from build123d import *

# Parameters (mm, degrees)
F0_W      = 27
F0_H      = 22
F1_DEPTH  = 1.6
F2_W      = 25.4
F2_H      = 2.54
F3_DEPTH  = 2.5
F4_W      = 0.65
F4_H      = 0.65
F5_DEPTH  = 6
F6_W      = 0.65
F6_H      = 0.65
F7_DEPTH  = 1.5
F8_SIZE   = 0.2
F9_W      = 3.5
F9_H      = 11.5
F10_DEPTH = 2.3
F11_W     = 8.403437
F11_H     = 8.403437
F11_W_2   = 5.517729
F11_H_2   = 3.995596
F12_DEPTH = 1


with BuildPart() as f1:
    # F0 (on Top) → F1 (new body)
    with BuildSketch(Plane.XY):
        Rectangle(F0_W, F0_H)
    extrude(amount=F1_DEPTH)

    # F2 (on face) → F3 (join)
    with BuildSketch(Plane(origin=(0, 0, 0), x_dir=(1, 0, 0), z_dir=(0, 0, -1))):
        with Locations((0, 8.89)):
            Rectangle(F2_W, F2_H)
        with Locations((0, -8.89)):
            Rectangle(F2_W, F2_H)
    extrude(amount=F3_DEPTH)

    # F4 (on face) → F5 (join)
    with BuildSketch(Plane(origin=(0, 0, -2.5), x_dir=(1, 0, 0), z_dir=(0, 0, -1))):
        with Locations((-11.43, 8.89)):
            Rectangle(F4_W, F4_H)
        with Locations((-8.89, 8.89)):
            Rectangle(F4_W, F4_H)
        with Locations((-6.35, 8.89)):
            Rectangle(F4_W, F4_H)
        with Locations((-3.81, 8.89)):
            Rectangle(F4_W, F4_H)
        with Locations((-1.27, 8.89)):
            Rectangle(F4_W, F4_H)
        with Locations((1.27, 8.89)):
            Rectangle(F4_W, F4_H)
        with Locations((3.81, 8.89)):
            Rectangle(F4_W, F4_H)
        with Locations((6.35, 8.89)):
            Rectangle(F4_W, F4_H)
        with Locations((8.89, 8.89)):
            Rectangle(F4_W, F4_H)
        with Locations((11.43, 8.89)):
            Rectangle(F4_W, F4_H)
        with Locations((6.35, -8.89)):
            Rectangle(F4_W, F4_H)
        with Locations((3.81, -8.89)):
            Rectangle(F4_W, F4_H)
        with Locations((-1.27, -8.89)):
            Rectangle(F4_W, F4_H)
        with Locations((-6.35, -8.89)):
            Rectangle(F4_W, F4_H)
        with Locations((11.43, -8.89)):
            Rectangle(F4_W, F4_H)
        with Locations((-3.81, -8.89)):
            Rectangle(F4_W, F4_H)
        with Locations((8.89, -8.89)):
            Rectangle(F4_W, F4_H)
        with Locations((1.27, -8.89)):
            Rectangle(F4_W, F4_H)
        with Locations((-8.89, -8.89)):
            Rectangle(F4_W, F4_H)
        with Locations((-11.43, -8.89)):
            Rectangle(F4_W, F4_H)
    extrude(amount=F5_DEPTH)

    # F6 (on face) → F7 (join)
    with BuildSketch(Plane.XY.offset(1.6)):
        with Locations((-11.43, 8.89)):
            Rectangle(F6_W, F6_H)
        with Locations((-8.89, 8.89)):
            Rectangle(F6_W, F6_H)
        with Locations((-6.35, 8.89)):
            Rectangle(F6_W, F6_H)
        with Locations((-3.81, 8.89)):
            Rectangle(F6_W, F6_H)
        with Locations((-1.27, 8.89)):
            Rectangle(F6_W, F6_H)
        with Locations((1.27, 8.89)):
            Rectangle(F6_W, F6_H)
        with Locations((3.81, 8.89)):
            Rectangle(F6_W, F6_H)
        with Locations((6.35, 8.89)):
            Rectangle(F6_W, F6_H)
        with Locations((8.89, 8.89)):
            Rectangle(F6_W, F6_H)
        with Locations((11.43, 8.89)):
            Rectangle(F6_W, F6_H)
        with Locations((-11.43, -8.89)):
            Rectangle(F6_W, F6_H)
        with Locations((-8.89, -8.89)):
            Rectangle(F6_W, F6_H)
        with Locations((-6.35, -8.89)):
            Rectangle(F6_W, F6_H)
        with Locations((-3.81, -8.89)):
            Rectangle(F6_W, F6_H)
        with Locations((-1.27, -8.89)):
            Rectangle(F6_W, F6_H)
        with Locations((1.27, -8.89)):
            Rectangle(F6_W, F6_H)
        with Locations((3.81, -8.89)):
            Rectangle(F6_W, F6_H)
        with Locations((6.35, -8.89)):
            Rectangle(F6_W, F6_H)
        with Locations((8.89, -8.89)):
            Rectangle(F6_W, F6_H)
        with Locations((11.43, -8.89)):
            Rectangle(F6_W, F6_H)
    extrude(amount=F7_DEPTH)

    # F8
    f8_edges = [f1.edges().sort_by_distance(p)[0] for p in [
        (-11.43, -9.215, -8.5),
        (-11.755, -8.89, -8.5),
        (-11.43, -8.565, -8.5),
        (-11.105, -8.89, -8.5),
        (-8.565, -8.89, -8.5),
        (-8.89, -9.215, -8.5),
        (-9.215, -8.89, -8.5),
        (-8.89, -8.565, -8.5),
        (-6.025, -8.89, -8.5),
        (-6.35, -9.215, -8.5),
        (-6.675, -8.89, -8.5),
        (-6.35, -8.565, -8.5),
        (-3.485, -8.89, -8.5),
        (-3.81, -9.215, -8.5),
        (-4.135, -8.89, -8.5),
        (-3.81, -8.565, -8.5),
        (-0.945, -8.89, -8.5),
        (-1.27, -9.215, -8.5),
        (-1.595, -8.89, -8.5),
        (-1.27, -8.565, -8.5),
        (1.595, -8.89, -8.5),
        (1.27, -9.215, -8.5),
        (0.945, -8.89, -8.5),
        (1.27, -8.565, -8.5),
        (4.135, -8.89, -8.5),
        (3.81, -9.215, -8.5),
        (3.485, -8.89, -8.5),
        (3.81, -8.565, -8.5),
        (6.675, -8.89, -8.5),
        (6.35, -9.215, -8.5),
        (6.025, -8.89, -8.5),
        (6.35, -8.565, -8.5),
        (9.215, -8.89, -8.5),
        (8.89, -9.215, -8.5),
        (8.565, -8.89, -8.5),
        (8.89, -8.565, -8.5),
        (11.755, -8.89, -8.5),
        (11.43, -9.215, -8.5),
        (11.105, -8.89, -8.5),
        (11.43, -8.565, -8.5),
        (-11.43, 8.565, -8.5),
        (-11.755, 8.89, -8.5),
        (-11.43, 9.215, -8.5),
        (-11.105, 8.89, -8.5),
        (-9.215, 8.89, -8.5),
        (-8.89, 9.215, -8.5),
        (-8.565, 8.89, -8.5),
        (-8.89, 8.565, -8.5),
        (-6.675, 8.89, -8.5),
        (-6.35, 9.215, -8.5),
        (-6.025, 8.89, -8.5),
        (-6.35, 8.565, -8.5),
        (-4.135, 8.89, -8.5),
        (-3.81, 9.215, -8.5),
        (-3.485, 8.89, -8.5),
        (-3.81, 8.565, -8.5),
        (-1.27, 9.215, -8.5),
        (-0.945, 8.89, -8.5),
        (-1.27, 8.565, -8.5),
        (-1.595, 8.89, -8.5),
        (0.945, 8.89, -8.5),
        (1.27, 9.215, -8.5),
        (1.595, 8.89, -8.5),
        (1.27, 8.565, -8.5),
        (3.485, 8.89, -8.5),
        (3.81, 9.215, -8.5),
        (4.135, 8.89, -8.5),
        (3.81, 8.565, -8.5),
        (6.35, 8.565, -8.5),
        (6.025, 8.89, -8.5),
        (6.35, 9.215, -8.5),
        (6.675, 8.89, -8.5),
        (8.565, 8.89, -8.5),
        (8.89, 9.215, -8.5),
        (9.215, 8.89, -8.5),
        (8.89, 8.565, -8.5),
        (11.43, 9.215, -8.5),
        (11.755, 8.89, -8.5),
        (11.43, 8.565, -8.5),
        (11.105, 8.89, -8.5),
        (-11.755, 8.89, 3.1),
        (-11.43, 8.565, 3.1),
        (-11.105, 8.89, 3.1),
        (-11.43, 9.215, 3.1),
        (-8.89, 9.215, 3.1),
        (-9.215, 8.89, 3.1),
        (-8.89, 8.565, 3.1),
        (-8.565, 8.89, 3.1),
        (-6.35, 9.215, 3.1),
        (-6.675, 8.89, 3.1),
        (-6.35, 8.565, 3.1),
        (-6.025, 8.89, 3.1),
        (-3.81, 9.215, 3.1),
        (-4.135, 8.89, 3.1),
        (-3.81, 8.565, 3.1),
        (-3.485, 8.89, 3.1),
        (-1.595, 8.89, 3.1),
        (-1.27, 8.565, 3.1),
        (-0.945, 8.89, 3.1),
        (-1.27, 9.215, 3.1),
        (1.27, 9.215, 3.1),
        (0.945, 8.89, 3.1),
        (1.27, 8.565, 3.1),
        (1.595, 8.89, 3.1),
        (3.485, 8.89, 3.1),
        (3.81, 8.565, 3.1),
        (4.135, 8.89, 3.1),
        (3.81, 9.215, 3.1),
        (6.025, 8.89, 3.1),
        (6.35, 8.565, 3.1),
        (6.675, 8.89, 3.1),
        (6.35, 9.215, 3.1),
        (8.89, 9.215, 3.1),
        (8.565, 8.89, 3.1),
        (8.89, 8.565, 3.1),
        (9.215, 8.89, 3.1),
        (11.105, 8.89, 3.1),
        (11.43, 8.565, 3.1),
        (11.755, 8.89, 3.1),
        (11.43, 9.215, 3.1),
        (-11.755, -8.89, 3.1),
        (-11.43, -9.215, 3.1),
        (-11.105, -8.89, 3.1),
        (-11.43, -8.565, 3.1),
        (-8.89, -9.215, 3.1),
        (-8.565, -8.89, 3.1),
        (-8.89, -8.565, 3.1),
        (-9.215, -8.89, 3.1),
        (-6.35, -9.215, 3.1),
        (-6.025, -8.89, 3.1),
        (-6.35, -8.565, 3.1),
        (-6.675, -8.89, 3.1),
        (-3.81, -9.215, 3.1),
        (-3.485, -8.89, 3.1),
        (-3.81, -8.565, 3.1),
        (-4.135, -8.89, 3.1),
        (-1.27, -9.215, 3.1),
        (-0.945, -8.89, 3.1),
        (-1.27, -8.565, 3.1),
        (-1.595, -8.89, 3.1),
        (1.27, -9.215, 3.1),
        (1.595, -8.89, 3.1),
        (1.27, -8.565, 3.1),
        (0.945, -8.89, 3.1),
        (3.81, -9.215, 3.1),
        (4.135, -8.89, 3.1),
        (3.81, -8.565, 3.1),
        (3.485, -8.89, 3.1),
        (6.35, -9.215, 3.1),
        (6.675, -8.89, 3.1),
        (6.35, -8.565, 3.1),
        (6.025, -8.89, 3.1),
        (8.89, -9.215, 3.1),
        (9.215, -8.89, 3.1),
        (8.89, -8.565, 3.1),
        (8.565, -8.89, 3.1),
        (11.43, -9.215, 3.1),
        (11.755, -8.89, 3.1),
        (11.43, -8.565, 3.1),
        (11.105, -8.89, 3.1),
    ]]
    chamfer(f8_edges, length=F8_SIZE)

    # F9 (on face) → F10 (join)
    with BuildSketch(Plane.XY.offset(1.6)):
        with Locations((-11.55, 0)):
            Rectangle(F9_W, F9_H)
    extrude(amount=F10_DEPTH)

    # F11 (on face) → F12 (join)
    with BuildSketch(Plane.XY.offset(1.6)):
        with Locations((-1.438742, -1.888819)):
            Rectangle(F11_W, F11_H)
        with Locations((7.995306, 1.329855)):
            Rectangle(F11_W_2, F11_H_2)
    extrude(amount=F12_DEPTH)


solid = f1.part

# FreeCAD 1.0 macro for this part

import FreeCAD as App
import Part
import Sketcher

V = App.Vector


def edges_at(feature, points):
    """Names of the edges that pass closest to the given points."""
    edges = feature.Shape.Edges
    near = lambda p: min(range(len(edges)), key=lambda i: edges[i].distToShape(Part.Vertex(*p))[0])
    return sorted({f"Edge{near(p) + 1}" for p in points})

doc = App.newDocument("Part")
body = doc.addObject("PartDesign::Body", "Body")

sketch1 = body.newObject("Sketcher::SketchObject", "Sketch")
sketch1.AttachmentSupport = (doc.getObject("XY_Plane"), [""])
sketch1.MapMode = "FlatFace"
sketch1.addGeometry([
    Part.LineSegment(V(-14, 11, 0), V(-14, -11, 0)),
    Part.LineSegment(V(-14, -11, 0), V(14, -11, 0)),
    Part.LineSegment(V(14, -11, 0), V(14, 11, 0)),
    Part.LineSegment(V(14, 11, 0), V(-14, 11, 0)),
], False)
sketch1.addConstraint([
    Sketcher.Constraint("Coincident", 0, 2, 1, 1),
    Sketcher.Constraint("Coincident", 1, 2, 2, 1),
    Sketcher.Constraint("Coincident", 2, 2, 3, 1),
    Sketcher.Constraint("Coincident", 3, 2, 0, 1),
    Sketcher.Constraint("Vertical", 0),
    Sketcher.Constraint("Horizontal", 1),
    Sketcher.Constraint("Vertical", 2),
    Sketcher.Constraint("Horizontal", 3),
    Sketcher.Constraint("Symmetric", 0, 2, 2, 2, -1, 1),
    Sketcher.Constraint("DistanceX", 1, 1, 1, 2, 27.0),
    Sketcher.Constraint("DistanceY", 0, 2, 0, 1, 22.0),
])
pad1 = body.newObject("PartDesign::Pad", "Pad")
pad1.Profile = sketch1
pad1.Length = 1.6

sketch2 = body.newObject("Sketcher::SketchObject", "Sketch001")
sketch2.AttachmentSupport = (doc.getObject("XY_Plane"), [""])
sketch2.MapMode = "FlatFace"
sketch2.addGeometry([
    Part.LineSegment(V(-12.7, -10.2, 0), V(-12.7, -7.6, 0)),
    Part.LineSegment(V(-12.7, -7.6, 0), V(12.7, -7.6, 0)),
    Part.LineSegment(V(12.7, -7.6, 0), V(12.7, -10.2, 0)),
    Part.LineSegment(V(12.7, -10.2, 0), V(-12.7, -10.2, 0)),
    Part.LineSegment(V(-12.7, 7.6, 0), V(-12.7, 10.2, 0)),
    Part.LineSegment(V(-12.7, 10.2, 0), V(12.7, 10.2, 0)),
    Part.LineSegment(V(12.7, 10.2, 0), V(12.7, 7.6, 0)),
    Part.LineSegment(V(12.7, 7.6, 0), V(-12.7, 7.6, 0)),
], False)
sketch2.addConstraint([
    Sketcher.Constraint("Coincident", 0, 2, 1, 1),
    Sketcher.Constraint("Coincident", 1, 2, 2, 1),
    Sketcher.Constraint("Coincident", 2, 2, 3, 1),
    Sketcher.Constraint("Coincident", 3, 2, 0, 1),
    Sketcher.Constraint("Coincident", 4, 2, 5, 1),
    Sketcher.Constraint("Coincident", 5, 2, 6, 1),
    Sketcher.Constraint("Coincident", 6, 2, 7, 1),
    Sketcher.Constraint("Coincident", 7, 2, 4, 1),
    Sketcher.Constraint("Vertical", 0),
    Sketcher.Constraint("Horizontal", 1),
    Sketcher.Constraint("Vertical", 2),
    Sketcher.Constraint("Horizontal", 3),
    Sketcher.Constraint("Vertical", 4),
    Sketcher.Constraint("Horizontal", 5),
    Sketcher.Constraint("Vertical", 6),
    Sketcher.Constraint("Horizontal", 7),
    Sketcher.Constraint("Symmetric", 2, 2, 4, 2, -1, 1),
    Sketcher.Constraint("Symmetric", 0, 2, 6, 2, -1, 1),
    Sketcher.Constraint("Vertical", 3, 2, 4, 2),
    Sketcher.Constraint("DistanceX", 1, 1, 1, 2, 25.4),
    Sketcher.Constraint("DistanceY", 0, 1, 0, 2, 2.54),
    Sketcher.Constraint("DistanceY", 0, 2, -1, 1, 7.62),
])
pad2 = body.newObject("PartDesign::Pad", "Pad001")
pad2.Profile = sketch2
pad2.Length = 2.5
pad2.Reversed = True

sketch3 = body.newObject("Sketcher::SketchObject", "Sketch002")
sketch3.AttachmentSupport = (doc.getObject("XY_Plane"), [""])
sketch3.MapMode = "FlatFace"
sketch3.AttachmentOffset = App.Placement(V(0, 0, -2.5), App.Rotation())
sketch3.addGeometry([
    Part.LineSegment(V(-11.8, -9.2, 0), V(-11.8, -8.6, 0)),
    Part.LineSegment(V(-11.8, -8.6, 0), V(-11.1, -8.6, 0)),
    Part.LineSegment(V(-11.1, -8.6, 0), V(-11.1, -9.2, 0)),
    Part.LineSegment(V(-11.1, -9.2, 0), V(-11.8, -9.2, 0)),
    Part.LineSegment(V(-9.2, -9.2, 0), V(-9.2, -8.6, 0)),
    Part.LineSegment(V(-9.2, -8.6, 0), V(-8.6, -8.6, 0)),
    Part.LineSegment(V(-8.6, -8.6, 0), V(-8.6, -9.2, 0)),
    Part.LineSegment(V(-8.6, -9.2, 0), V(-9.2, -9.2, 0)),
    Part.LineSegment(V(-6.7, -9.2, 0), V(-6.7, -8.6, 0)),
    Part.LineSegment(V(-6.7, -8.6, 0), V(-6, -8.6, 0)),
    Part.LineSegment(V(-6, -8.6, 0), V(-6, -9.2, 0)),
    Part.LineSegment(V(-6, -9.2, 0), V(-6.7, -9.2, 0)),
    Part.LineSegment(V(-4.1, -9.2, 0), V(-4.1, -8.6, 0)),
    Part.LineSegment(V(-4.1, -8.6, 0), V(-3.5, -8.6, 0)),
    Part.LineSegment(V(-3.5, -8.6, 0), V(-3.5, -9.2, 0)),
    Part.LineSegment(V(-3.5, -9.2, 0), V(-4.1, -9.2, 0)),
    Part.LineSegment(V(-1.6, -9.2, 0), V(-1.6, -8.6, 0)),
    Part.LineSegment(V(-1.6, -8.6, 0), V(-0.9, -8.6, 0)),
    Part.LineSegment(V(-0.9, -8.6, 0), V(-0.9, -9.2, 0)),
    Part.LineSegment(V(-0.9, -9.2, 0), V(-1.6, -9.2, 0)),
    Part.LineSegment(V(0.9, -9.2, 0), V(0.9, -8.6, 0)),
    Part.LineSegment(V(0.9, -8.6, 0), V(1.6, -8.6, 0)),
    Part.LineSegment(V(1.6, -8.6, 0), V(1.6, -9.2, 0)),
    Part.LineSegment(V(1.6, -9.2, 0), V(0.9, -9.2, 0)),
    Part.LineSegment(V(3.5, -9.2, 0), V(3.5, -8.6, 0)),
    Part.LineSegment(V(3.5, -8.6, 0), V(4.1, -8.6, 0)),
    Part.LineSegment(V(4.1, -8.6, 0), V(4.1, -9.2, 0)),
    Part.LineSegment(V(4.1, -9.2, 0), V(3.5, -9.2, 0)),
    Part.LineSegment(V(6, -9.2, 0), V(6, -8.6, 0)),
    Part.LineSegment(V(6, -8.6, 0), V(6.7, -8.6, 0)),
    Part.LineSegment(V(6.7, -8.6, 0), V(6.7, -9.2, 0)),
    Part.LineSegment(V(6.7, -9.2, 0), V(6, -9.2, 0)),
    Part.LineSegment(V(8.6, -9.2, 0), V(8.6, -8.6, 0)),
    Part.LineSegment(V(8.6, -8.6, 0), V(9.2, -8.6, 0)),
    Part.LineSegment(V(9.2, -8.6, 0), V(9.2, -9.2, 0)),
    Part.LineSegment(V(9.2, -9.2, 0), V(8.6, -9.2, 0)),
    Part.LineSegment(V(11.1, -9.2, 0), V(11.1, -8.6, 0)),
    Part.LineSegment(V(11.1, -8.6, 0), V(11.8, -8.6, 0)),
    Part.LineSegment(V(11.8, -8.6, 0), V(11.8, -9.2, 0)),
    Part.LineSegment(V(11.8, -9.2, 0), V(11.1, -9.2, 0)),
    Part.LineSegment(V(6, 8.6, 0), V(6, 9.2, 0)),
    Part.LineSegment(V(6, 9.2, 0), V(6.7, 9.2, 0)),
    Part.LineSegment(V(6.7, 9.2, 0), V(6.7, 8.6, 0)),
    Part.LineSegment(V(6.7, 8.6, 0), V(6, 8.6, 0)),
    Part.LineSegment(V(3.5, 8.6, 0), V(3.5, 9.2, 0)),
    Part.LineSegment(V(3.5, 9.2, 0), V(4.1, 9.2, 0)),
    Part.LineSegment(V(4.1, 9.2, 0), V(4.1, 8.6, 0)),
    Part.LineSegment(V(4.1, 8.6, 0), V(3.5, 8.6, 0)),
    Part.LineSegment(V(-1.6, 8.6, 0), V(-1.6, 9.2, 0)),
    Part.LineSegment(V(-1.6, 9.2, 0), V(-0.9, 9.2, 0)),
    Part.LineSegment(V(-0.9, 9.2, 0), V(-0.9, 8.6, 0)),
    Part.LineSegment(V(-0.9, 8.6, 0), V(-1.6, 8.6, 0)),
    Part.LineSegment(V(-6.7, 8.6, 0), V(-6.7, 9.2, 0)),
    Part.LineSegment(V(-6.7, 9.2, 0), V(-6, 9.2, 0)),
    Part.LineSegment(V(-6, 9.2, 0), V(-6, 8.6, 0)),
    Part.LineSegment(V(-6, 8.6, 0), V(-6.7, 8.6, 0)),
    Part.LineSegment(V(11.1, 8.6, 0), V(11.1, 9.2, 0)),
    Part.LineSegment(V(11.1, 9.2, 0), V(11.8, 9.2, 0)),
    Part.LineSegment(V(11.8, 9.2, 0), V(11.8, 8.6, 0)),
    Part.LineSegment(V(11.8, 8.6, 0), V(11.1, 8.6, 0)),
    Part.LineSegment(V(-4.1, 8.6, 0), V(-4.1, 9.2, 0)),
    Part.LineSegment(V(-4.1, 9.2, 0), V(-3.5, 9.2, 0)),
    Part.LineSegment(V(-3.5, 9.2, 0), V(-3.5, 8.6, 0)),
    Part.LineSegment(V(-3.5, 8.6, 0), V(-4.1, 8.6, 0)),
    Part.LineSegment(V(8.6, 8.6, 0), V(8.6, 9.2, 0)),
    Part.LineSegment(V(8.6, 9.2, 0), V(9.2, 9.2, 0)),
    Part.LineSegment(V(9.2, 9.2, 0), V(9.2, 8.6, 0)),
    Part.LineSegment(V(9.2, 8.6, 0), V(8.6, 8.6, 0)),
    Part.LineSegment(V(0.9, 8.6, 0), V(0.9, 9.2, 0)),
    Part.LineSegment(V(0.9, 9.2, 0), V(1.6, 9.2, 0)),
    Part.LineSegment(V(1.6, 9.2, 0), V(1.6, 8.6, 0)),
    Part.LineSegment(V(1.6, 8.6, 0), V(0.9, 8.6, 0)),
    Part.LineSegment(V(-9.2, 8.6, 0), V(-9.2, 9.2, 0)),
    Part.LineSegment(V(-9.2, 9.2, 0), V(-8.6, 9.2, 0)),
    Part.LineSegment(V(-8.6, 9.2, 0), V(-8.6, 8.6, 0)),
    Part.LineSegment(V(-8.6, 8.6, 0), V(-9.2, 8.6, 0)),
    Part.LineSegment(V(-11.8, 8.6, 0), V(-11.8, 9.2, 0)),
    Part.LineSegment(V(-11.8, 9.2, 0), V(-11.1, 9.2, 0)),
    Part.LineSegment(V(-11.1, 9.2, 0), V(-11.1, 8.6, 0)),
    Part.LineSegment(V(-11.1, 8.6, 0), V(-11.8, 8.6, 0)),
], False)
sketch3.addConstraint([
    Sketcher.Constraint("Coincident", 0, 2, 1, 1),
    Sketcher.Constraint("Coincident", 1, 2, 2, 1),
    Sketcher.Constraint("Coincident", 2, 2, 3, 1),
    Sketcher.Constraint("Coincident", 3, 2, 0, 1),
    Sketcher.Constraint("Coincident", 4, 2, 5, 1),
    Sketcher.Constraint("Coincident", 5, 2, 6, 1),
    Sketcher.Constraint("Coincident", 6, 2, 7, 1),
    Sketcher.Constraint("Coincident", 7, 2, 4, 1),
    Sketcher.Constraint("Coincident", 8, 2, 9, 1),
    Sketcher.Constraint("Coincident", 9, 2, 10, 1),
    Sketcher.Constraint("Coincident", 10, 2, 11, 1),
    Sketcher.Constraint("Coincident", 11, 2, 8, 1),
    Sketcher.Constraint("Coincident", 12, 2, 13, 1),
    Sketcher.Constraint("Coincident", 13, 2, 14, 1),
    Sketcher.Constraint("Coincident", 14, 2, 15, 1),
    Sketcher.Constraint("Coincident", 15, 2, 12, 1),
    Sketcher.Constraint("Coincident", 16, 2, 17, 1),
    Sketcher.Constraint("Coincident", 17, 2, 18, 1),
    Sketcher.Constraint("Coincident", 18, 2, 19, 1),
    Sketcher.Constraint("Coincident", 19, 2, 16, 1),
    Sketcher.Constraint("Coincident", 20, 2, 21, 1),
    Sketcher.Constraint("Coincident", 21, 2, 22, 1),
    Sketcher.Constraint("Coincident", 22, 2, 23, 1),
    Sketcher.Constraint("Coincident", 23, 2, 20, 1),
    Sketcher.Constraint("Coincident", 24, 2, 25, 1),
    Sketcher.Constraint("Coincident", 25, 2, 26, 1),
    Sketcher.Constraint("Coincident", 26, 2, 27, 1),
    Sketcher.Constraint("Coincident", 27, 2, 24, 1),
    Sketcher.Constraint("Coincident", 28, 2, 29, 1),
    Sketcher.Constraint("Coincident", 29, 2, 30, 1),
    Sketcher.Constraint("Coincident", 30, 2, 31, 1),
    Sketcher.Constraint("Coincident", 31, 2, 28, 1),
    Sketcher.Constraint("Coincident", 32, 2, 33, 1),
    Sketcher.Constraint("Coincident", 33, 2, 34, 1),
    Sketcher.Constraint("Coincident", 34, 2, 35, 1),
    Sketcher.Constraint("Coincident", 35, 2, 32, 1),
    Sketcher.Constraint("Coincident", 36, 2, 37, 1),
    Sketcher.Constraint("Coincident", 37, 2, 38, 1),
    Sketcher.Constraint("Coincident", 38, 2, 39, 1),
    Sketcher.Constraint("Coincident", 39, 2, 36, 1),
    Sketcher.Constraint("Coincident", 40, 2, 41, 1),
    Sketcher.Constraint("Coincident", 41, 2, 42, 1),
    Sketcher.Constraint("Coincident", 42, 2, 43, 1),
    Sketcher.Constraint("Coincident", 43, 2, 40, 1),
    Sketcher.Constraint("Coincident", 44, 2, 45, 1),
    Sketcher.Constraint("Coincident", 45, 2, 46, 1),
    Sketcher.Constraint("Coincident", 46, 2, 47, 1),
    Sketcher.Constraint("Coincident", 47, 2, 44, 1),
    Sketcher.Constraint("Coincident", 48, 2, 49, 1),
    Sketcher.Constraint("Coincident", 49, 2, 50, 1),
    Sketcher.Constraint("Coincident", 50, 2, 51, 1),
    Sketcher.Constraint("Coincident", 51, 2, 48, 1),
    Sketcher.Constraint("Coincident", 52, 2, 53, 1),
    Sketcher.Constraint("Coincident", 53, 2, 54, 1),
    Sketcher.Constraint("Coincident", 54, 2, 55, 1),
    Sketcher.Constraint("Coincident", 55, 2, 52, 1),
    Sketcher.Constraint("Coincident", 56, 2, 57, 1),
    Sketcher.Constraint("Coincident", 57, 2, 58, 1),
    Sketcher.Constraint("Coincident", 58, 2, 59, 1),
    Sketcher.Constraint("Coincident", 59, 2, 56, 1),
    Sketcher.Constraint("Coincident", 60, 2, 61, 1),
    Sketcher.Constraint("Coincident", 61, 2, 62, 1),
    Sketcher.Constraint("Coincident", 62, 2, 63, 1),
    Sketcher.Constraint("Coincident", 63, 2, 60, 1),
    Sketcher.Constraint("Coincident", 64, 2, 65, 1),
    Sketcher.Constraint("Coincident", 65, 2, 66, 1),
    Sketcher.Constraint("Coincident", 66, 2, 67, 1),
    Sketcher.Constraint("Coincident", 67, 2, 64, 1),
    Sketcher.Constraint("Coincident", 68, 2, 69, 1),
    Sketcher.Constraint("Coincident", 69, 2, 70, 1),
    Sketcher.Constraint("Coincident", 70, 2, 71, 1),
    Sketcher.Constraint("Coincident", 71, 2, 68, 1),
    Sketcher.Constraint("Coincident", 72, 2, 73, 1),
    Sketcher.Constraint("Coincident", 73, 2, 74, 1),
    Sketcher.Constraint("Coincident", 74, 2, 75, 1),
    Sketcher.Constraint("Coincident", 75, 2, 72, 1),
    Sketcher.Constraint("Coincident", 76, 2, 77, 1),
    Sketcher.Constraint("Coincident", 77, 2, 78, 1),
    Sketcher.Constraint("Coincident", 78, 2, 79, 1),
    Sketcher.Constraint("Coincident", 79, 2, 76, 1),
    Sketcher.Constraint("Vertical", 0),
    Sketcher.Constraint("Horizontal", 1),
    Sketcher.Constraint("Vertical", 2),
    Sketcher.Constraint("Horizontal", 3),
    Sketcher.Constraint("Vertical", 4),
    Sketcher.Constraint("Horizontal", 5),
    Sketcher.Constraint("Vertical", 6),
    Sketcher.Constraint("Horizontal", 7),
    Sketcher.Constraint("Vertical", 8),
    Sketcher.Constraint("Horizontal", 9),
    Sketcher.Constraint("Vertical", 10),
    Sketcher.Constraint("Horizontal", 11),
    Sketcher.Constraint("Vertical", 12),
    Sketcher.Constraint("Horizontal", 13),
    Sketcher.Constraint("Vertical", 14),
    Sketcher.Constraint("Horizontal", 15),
    Sketcher.Constraint("Vertical", 16),
    Sketcher.Constraint("Horizontal", 17),
    Sketcher.Constraint("Vertical", 18),
    Sketcher.Constraint("Horizontal", 19),
    Sketcher.Constraint("Vertical", 20),
    Sketcher.Constraint("Horizontal", 21),
    Sketcher.Constraint("Vertical", 22),
    Sketcher.Constraint("Horizontal", 23),
    Sketcher.Constraint("Vertical", 24),
    Sketcher.Constraint("Horizontal", 25),
    Sketcher.Constraint("Vertical", 26),
    Sketcher.Constraint("Horizontal", 27),
    Sketcher.Constraint("Vertical", 28),
    Sketcher.Constraint("Horizontal", 29),
    Sketcher.Constraint("Vertical", 30),
    Sketcher.Constraint("Horizontal", 31),
    Sketcher.Constraint("Vertical", 32),
    Sketcher.Constraint("Horizontal", 33),
    Sketcher.Constraint("Vertical", 34),
    Sketcher.Constraint("Horizontal", 35),
    Sketcher.Constraint("Vertical", 36),
    Sketcher.Constraint("Horizontal", 37),
    Sketcher.Constraint("Vertical", 38),
    Sketcher.Constraint("Horizontal", 39),
    Sketcher.Constraint("Vertical", 40),
    Sketcher.Constraint("Horizontal", 41),
    Sketcher.Constraint("Vertical", 42),
    Sketcher.Constraint("Horizontal", 43),
    Sketcher.Constraint("Vertical", 44),
    Sketcher.Constraint("Horizontal", 45),
    Sketcher.Constraint("Vertical", 46),
    Sketcher.Constraint("Horizontal", 47),
    Sketcher.Constraint("Vertical", 48),
    Sketcher.Constraint("Horizontal", 49),
    Sketcher.Constraint("Vertical", 50),
    Sketcher.Constraint("Horizontal", 51),
    Sketcher.Constraint("Vertical", 52),
    Sketcher.Constraint("Horizontal", 53),
    Sketcher.Constraint("Vertical", 54),
    Sketcher.Constraint("Horizontal", 55),
    Sketcher.Constraint("Vertical", 56),
    Sketcher.Constraint("Horizontal", 57),
    Sketcher.Constraint("Vertical", 58),
    Sketcher.Constraint("Horizontal", 59),
    Sketcher.Constraint("Vertical", 60),
    Sketcher.Constraint("Horizontal", 61),
    Sketcher.Constraint("Vertical", 62),
    Sketcher.Constraint("Horizontal", 63),
    Sketcher.Constraint("Vertical", 64),
    Sketcher.Constraint("Horizontal", 65),
    Sketcher.Constraint("Vertical", 66),
    Sketcher.Constraint("Horizontal", 67),
    Sketcher.Constraint("Vertical", 68),
    Sketcher.Constraint("Horizontal", 69),
    Sketcher.Constraint("Vertical", 70),
    Sketcher.Constraint("Horizontal", 71),
    Sketcher.Constraint("Vertical", 72),
    Sketcher.Constraint("Horizontal", 73),
    Sketcher.Constraint("Vertical", 74),
    Sketcher.Constraint("Horizontal", 75),
    Sketcher.Constraint("Vertical", 76),
    Sketcher.Constraint("Horizontal", 77),
    Sketcher.Constraint("Vertical", 78),
    Sketcher.Constraint("Horizontal", 79),
    Sketcher.Constraint("Symmetric", 10, 2, 40, 2, -1, 1),
    Sketcher.Constraint("Symmetric", 8, 2, 42, 2, -1, 1),
    Sketcher.Constraint("Symmetric", 14, 2, 44, 2, -1, 1),
    Sketcher.Constraint("Symmetric", 12, 2, 46, 2, -1, 1),
    Sketcher.Constraint("Symmetric", 22, 2, 48, 2, -1, 1),
    Sketcher.Constraint("Symmetric", 20, 2, 50, 2, -1, 1),
    Sketcher.Constraint("Symmetric", 30, 2, 52, 2, -1, 1),
    Sketcher.Constraint("Symmetric", 28, 2, 54, 2, -1, 1),
    Sketcher.Constraint("Symmetric", 2, 2, 56, 2, -1, 1),
    Sketcher.Constraint("Symmetric", 0, 2, 58, 2, -1, 1),
    Sketcher.Constraint("Symmetric", 26, 2, 60, 2, -1, 1),
    Sketcher.Constraint("Symmetric", 24, 2, 62, 2, -1, 1),
    Sketcher.Constraint("Symmetric", 6, 2, 64, 2, -1, 1),
    Sketcher.Constraint("Symmetric", 4, 2, 66, 2, -1, 1),
    Sketcher.Constraint("Symmetric", 18, 2, 68, 2, -1, 1),
    Sketcher.Constraint("Symmetric", 16, 2, 70, 2, -1, 1),
    Sketcher.Constraint("Symmetric", 34, 2, 72, 2, -1, 1),
    Sketcher.Constraint("Symmetric", 32, 2, 74, 2, -1, 1),
    Sketcher.Constraint("Symmetric", 38, 2, 76, 2, -1, 1),
    Sketcher.Constraint("Symmetric", 36, 2, 78, 2, -1, 1),
    Sketcher.Constraint("Symmetric", 17, 2, 20, 2, -2),
    Sketcher.Constraint("Symmetric", 19, 2, 22, 2, -2),
    Sketcher.Constraint("Symmetric", 13, 2, 24, 2, -2),
    Sketcher.Constraint("Symmetric", 15, 2, 26, 2, -2),
    Sketcher.Constraint("Symmetric", 9, 2, 28, 2, -2),
    Sketcher.Constraint("Symmetric", 11, 2, 30, 2, -2),
    Sketcher.Constraint("Symmetric", 5, 2, 32, 2, -2),
    Sketcher.Constraint("Symmetric", 7, 2, 34, 2, -2),
    Sketcher.Constraint("Symmetric", 1, 2, 36, 2, -2),
    Sketcher.Constraint("Symmetric", 3, 2, 38, 2, -2),
    Sketcher.Constraint("Horizontal", 1, 2, 4, 2),
    Sketcher.Constraint("Horizontal", 3, 2, 6, 2),
    Sketcher.Constraint("Horizontal", 5, 2, 8, 2),
    Sketcher.Constraint("Horizontal", 7, 2, 10, 2),
    Sketcher.Constraint("Horizontal", 9, 2, 12, 2),
    Sketcher.Constraint("Horizontal", 11, 2, 14, 2),
    Sketcher.Constraint("Horizontal", 13, 2, 16, 2),
    Sketcher.Constraint("Horizontal", 15, 2, 18, 2),
    Sketcher.Constraint("Equal", 3, 5),
    Sketcher.Constraint("Equal", 7, 9),
    Sketcher.Constraint("Equal", 11, 13),
    Sketcher.Constraint("Equal", 15, 17),
    Sketcher.Constraint("Equal", 79, 0),
    Sketcher.Constraint("DistanceX", 1, 1, 1, 2, 0.65),
    Sketcher.Constraint("DistanceX", 0, 2, -1, 1, 11.755),
    Sketcher.Constraint("DistanceY", 0, 2, -1, 1, 8.565),
    Sketcher.Constraint("DistanceX", 4, 2, -1, 1, 9.215),
    Sketcher.Constraint("DistanceX", 8, 2, -1, 1, 6.675),
    Sketcher.Constraint("DistanceX", 12, 2, -1, 1, 4.135),
    Sketcher.Constraint("DistanceX", 16, 2, -1, 1, 1.595),
])
pad3 = body.newObject("PartDesign::Pad", "Pad002")
pad3.Profile = sketch3
pad3.Length = 6
pad3.Reversed = True

sketch4 = body.newObject("Sketcher::SketchObject", "Sketch003")
sketch4.AttachmentSupport = (doc.getObject("XY_Plane"), [""])
sketch4.MapMode = "FlatFace"
sketch4.AttachmentOffset = App.Placement(V(0, 0, 1.6), App.Rotation())
sketch4.addGeometry([
    Part.LineSegment(V(-11.8, 9.2, 0), V(-11.8, 8.6, 0)),
    Part.LineSegment(V(-11.8, 8.6, 0), V(-11.1, 8.6, 0)),
    Part.LineSegment(V(-11.1, 8.6, 0), V(-11.1, 9.2, 0)),
    Part.LineSegment(V(-11.1, 9.2, 0), V(-11.8, 9.2, 0)),
    Part.LineSegment(V(-9.2, 9.2, 0), V(-9.2, 8.6, 0)),
    Part.LineSegment(V(-9.2, 8.6, 0), V(-8.6, 8.6, 0)),
    Part.LineSegment(V(-8.6, 8.6, 0), V(-8.6, 9.2, 0)),
    Part.LineSegment(V(-8.6, 9.2, 0), V(-9.2, 9.2, 0)),
    Part.LineSegment(V(-6.7, 9.2, 0), V(-6.7, 8.6, 0)),
    Part.LineSegment(V(-6.7, 8.6, 0), V(-6, 8.6, 0)),
    Part.LineSegment(V(-6, 8.6, 0), V(-6, 9.2, 0)),
    Part.LineSegment(V(-6, 9.2, 0), V(-6.7, 9.2, 0)),
    Part.LineSegment(V(-4.1, 9.2, 0), V(-4.1, 8.6, 0)),
    Part.LineSegment(V(-4.1, 8.6, 0), V(-3.5, 8.6, 0)),
    Part.LineSegment(V(-3.5, 8.6, 0), V(-3.5, 9.2, 0)),
    Part.LineSegment(V(-3.5, 9.2, 0), V(-4.1, 9.2, 0)),
    Part.LineSegment(V(-1.6, 9.2, 0), V(-1.6, 8.6, 0)),
    Part.LineSegment(V(-1.6, 8.6, 0), V(-0.9, 8.6, 0)),
    Part.LineSegment(V(-0.9, 8.6, 0), V(-0.9, 9.2, 0)),
    Part.LineSegment(V(-0.9, 9.2, 0), V(-1.6, 9.2, 0)),
    Part.LineSegment(V(0.9, 9.2, 0), V(0.9, 8.6, 0)),
    Part.LineSegment(V(0.9, 8.6, 0), V(1.6, 8.6, 0)),
    Part.LineSegment(V(1.6, 8.6, 0), V(1.6, 9.2, 0)),
    Part.LineSegment(V(1.6, 9.2, 0), V(0.9, 9.2, 0)),
    Part.LineSegment(V(3.5, 9.2, 0), V(3.5, 8.6, 0)),
    Part.LineSegment(V(3.5, 8.6, 0), V(4.1, 8.6, 0)),
    Part.LineSegment(V(4.1, 8.6, 0), V(4.1, 9.2, 0)),
    Part.LineSegment(V(4.1, 9.2, 0), V(3.5, 9.2, 0)),
    Part.LineSegment(V(6, 9.2, 0), V(6, 8.6, 0)),
    Part.LineSegment(V(6, 8.6, 0), V(6.7, 8.6, 0)),
    Part.LineSegment(V(6.7, 8.6, 0), V(6.7, 9.2, 0)),
    Part.LineSegment(V(6.7, 9.2, 0), V(6, 9.2, 0)),
    Part.LineSegment(V(8.6, 9.2, 0), V(8.6, 8.6, 0)),
    Part.LineSegment(V(8.6, 8.6, 0), V(9.2, 8.6, 0)),
    Part.LineSegment(V(9.2, 8.6, 0), V(9.2, 9.2, 0)),
    Part.LineSegment(V(9.2, 9.2, 0), V(8.6, 9.2, 0)),
    Part.LineSegment(V(11.1, 9.2, 0), V(11.1, 8.6, 0)),
    Part.LineSegment(V(11.1, 8.6, 0), V(11.8, 8.6, 0)),
    Part.LineSegment(V(11.8, 8.6, 0), V(11.8, 9.2, 0)),
    Part.LineSegment(V(11.8, 9.2, 0), V(11.1, 9.2, 0)),
    Part.LineSegment(V(-11.8, -8.6, 0), V(-11.8, -9.2, 0)),
    Part.LineSegment(V(-11.8, -9.2, 0), V(-11.1, -9.2, 0)),
    Part.LineSegment(V(-11.1, -9.2, 0), V(-11.1, -8.6, 0)),
    Part.LineSegment(V(-11.1, -8.6, 0), V(-11.8, -8.6, 0)),
    Part.LineSegment(V(-9.2, -8.6, 0), V(-9.2, -9.2, 0)),
    Part.LineSegment(V(-9.2, -9.2, 0), V(-8.6, -9.2, 0)),
    Part.LineSegment(V(-8.6, -9.2, 0), V(-8.6, -8.6, 0)),
    Part.LineSegment(V(-8.6, -8.6, 0), V(-9.2, -8.6, 0)),
    Part.LineSegment(V(-6.7, -8.6, 0), V(-6.7, -9.2, 0)),
    Part.LineSegment(V(-6.7, -9.2, 0), V(-6, -9.2, 0)),
    Part.LineSegment(V(-6, -9.2, 0), V(-6, -8.6, 0)),
    Part.LineSegment(V(-6, -8.6, 0), V(-6.7, -8.6, 0)),
    Part.LineSegment(V(-4.1, -8.6, 0), V(-4.1, -9.2, 0)),
    Part.LineSegment(V(-4.1, -9.2, 0), V(-3.5, -9.2, 0)),
    Part.LineSegment(V(-3.5, -9.2, 0), V(-3.5, -8.6, 0)),
    Part.LineSegment(V(-3.5, -8.6, 0), V(-4.1, -8.6, 0)),
    Part.LineSegment(V(-1.6, -8.6, 0), V(-1.6, -9.2, 0)),
    Part.LineSegment(V(-1.6, -9.2, 0), V(-0.9, -9.2, 0)),
    Part.LineSegment(V(-0.9, -9.2, 0), V(-0.9, -8.6, 0)),
    Part.LineSegment(V(-0.9, -8.6, 0), V(-1.6, -8.6, 0)),
    Part.LineSegment(V(0.9, -8.6, 0), V(0.9, -9.2, 0)),
    Part.LineSegment(V(0.9, -9.2, 0), V(1.6, -9.2, 0)),
    Part.LineSegment(V(1.6, -9.2, 0), V(1.6, -8.6, 0)),
    Part.LineSegment(V(1.6, -8.6, 0), V(0.9, -8.6, 0)),
    Part.LineSegment(V(3.5, -8.6, 0), V(3.5, -9.2, 0)),
    Part.LineSegment(V(3.5, -9.2, 0), V(4.1, -9.2, 0)),
    Part.LineSegment(V(4.1, -9.2, 0), V(4.1, -8.6, 0)),
    Part.LineSegment(V(4.1, -8.6, 0), V(3.5, -8.6, 0)),
    Part.LineSegment(V(6, -8.6, 0), V(6, -9.2, 0)),
    Part.LineSegment(V(6, -9.2, 0), V(6.7, -9.2, 0)),
    Part.LineSegment(V(6.7, -9.2, 0), V(6.7, -8.6, 0)),
    Part.LineSegment(V(6.7, -8.6, 0), V(6, -8.6, 0)),
    Part.LineSegment(V(8.6, -8.6, 0), V(8.6, -9.2, 0)),
    Part.LineSegment(V(8.6, -9.2, 0), V(9.2, -9.2, 0)),
    Part.LineSegment(V(9.2, -9.2, 0), V(9.2, -8.6, 0)),
    Part.LineSegment(V(9.2, -8.6, 0), V(8.6, -8.6, 0)),
    Part.LineSegment(V(11.1, -8.6, 0), V(11.1, -9.2, 0)),
    Part.LineSegment(V(11.1, -9.2, 0), V(11.8, -9.2, 0)),
    Part.LineSegment(V(11.8, -9.2, 0), V(11.8, -8.6, 0)),
    Part.LineSegment(V(11.8, -8.6, 0), V(11.1, -8.6, 0)),
], False)
sketch4.addConstraint([
    Sketcher.Constraint("Coincident", 0, 2, 1, 1),
    Sketcher.Constraint("Coincident", 1, 2, 2, 1),
    Sketcher.Constraint("Coincident", 2, 2, 3, 1),
    Sketcher.Constraint("Coincident", 3, 2, 0, 1),
    Sketcher.Constraint("Coincident", 4, 2, 5, 1),
    Sketcher.Constraint("Coincident", 5, 2, 6, 1),
    Sketcher.Constraint("Coincident", 6, 2, 7, 1),
    Sketcher.Constraint("Coincident", 7, 2, 4, 1),
    Sketcher.Constraint("Coincident", 8, 2, 9, 1),
    Sketcher.Constraint("Coincident", 9, 2, 10, 1),
    Sketcher.Constraint("Coincident", 10, 2, 11, 1),
    Sketcher.Constraint("Coincident", 11, 2, 8, 1),
    Sketcher.Constraint("Coincident", 12, 2, 13, 1),
    Sketcher.Constraint("Coincident", 13, 2, 14, 1),
    Sketcher.Constraint("Coincident", 14, 2, 15, 1),
    Sketcher.Constraint("Coincident", 15, 2, 12, 1),
    Sketcher.Constraint("Coincident", 16, 2, 17, 1),
    Sketcher.Constraint("Coincident", 17, 2, 18, 1),
    Sketcher.Constraint("Coincident", 18, 2, 19, 1),
    Sketcher.Constraint("Coincident", 19, 2, 16, 1),
    Sketcher.Constraint("Coincident", 20, 2, 21, 1),
    Sketcher.Constraint("Coincident", 21, 2, 22, 1),
    Sketcher.Constraint("Coincident", 22, 2, 23, 1),
    Sketcher.Constraint("Coincident", 23, 2, 20, 1),
    Sketcher.Constraint("Coincident", 24, 2, 25, 1),
    Sketcher.Constraint("Coincident", 25, 2, 26, 1),
    Sketcher.Constraint("Coincident", 26, 2, 27, 1),
    Sketcher.Constraint("Coincident", 27, 2, 24, 1),
    Sketcher.Constraint("Coincident", 28, 2, 29, 1),
    Sketcher.Constraint("Coincident", 29, 2, 30, 1),
    Sketcher.Constraint("Coincident", 30, 2, 31, 1),
    Sketcher.Constraint("Coincident", 31, 2, 28, 1),
    Sketcher.Constraint("Coincident", 32, 2, 33, 1),
    Sketcher.Constraint("Coincident", 33, 2, 34, 1),
    Sketcher.Constraint("Coincident", 34, 2, 35, 1),
    Sketcher.Constraint("Coincident", 35, 2, 32, 1),
    Sketcher.Constraint("Coincident", 36, 2, 37, 1),
    Sketcher.Constraint("Coincident", 37, 2, 38, 1),
    Sketcher.Constraint("Coincident", 38, 2, 39, 1),
    Sketcher.Constraint("Coincident", 39, 2, 36, 1),
    Sketcher.Constraint("Coincident", 40, 2, 41, 1),
    Sketcher.Constraint("Coincident", 41, 2, 42, 1),
    Sketcher.Constraint("Coincident", 42, 2, 43, 1),
    Sketcher.Constraint("Coincident", 43, 2, 40, 1),
    Sketcher.Constraint("Coincident", 44, 2, 45, 1),
    Sketcher.Constraint("Coincident", 45, 2, 46, 1),
    Sketcher.Constraint("Coincident", 46, 2, 47, 1),
    Sketcher.Constraint("Coincident", 47, 2, 44, 1),
    Sketcher.Constraint("Coincident", 48, 2, 49, 1),
    Sketcher.Constraint("Coincident", 49, 2, 50, 1),
    Sketcher.Constraint("Coincident", 50, 2, 51, 1),
    Sketcher.Constraint("Coincident", 51, 2, 48, 1),
    Sketcher.Constraint("Coincident", 52, 2, 53, 1),
    Sketcher.Constraint("Coincident", 53, 2, 54, 1),
    Sketcher.Constraint("Coincident", 54, 2, 55, 1),
    Sketcher.Constraint("Coincident", 55, 2, 52, 1),
    Sketcher.Constraint("Coincident", 56, 2, 57, 1),
    Sketcher.Constraint("Coincident", 57, 2, 58, 1),
    Sketcher.Constraint("Coincident", 58, 2, 59, 1),
    Sketcher.Constraint("Coincident", 59, 2, 56, 1),
    Sketcher.Constraint("Coincident", 60, 2, 61, 1),
    Sketcher.Constraint("Coincident", 61, 2, 62, 1),
    Sketcher.Constraint("Coincident", 62, 2, 63, 1),
    Sketcher.Constraint("Coincident", 63, 2, 60, 1),
    Sketcher.Constraint("Coincident", 64, 2, 65, 1),
    Sketcher.Constraint("Coincident", 65, 2, 66, 1),
    Sketcher.Constraint("Coincident", 66, 2, 67, 1),
    Sketcher.Constraint("Coincident", 67, 2, 64, 1),
    Sketcher.Constraint("Coincident", 68, 2, 69, 1),
    Sketcher.Constraint("Coincident", 69, 2, 70, 1),
    Sketcher.Constraint("Coincident", 70, 2, 71, 1),
    Sketcher.Constraint("Coincident", 71, 2, 68, 1),
    Sketcher.Constraint("Coincident", 72, 2, 73, 1),
    Sketcher.Constraint("Coincident", 73, 2, 74, 1),
    Sketcher.Constraint("Coincident", 74, 2, 75, 1),
    Sketcher.Constraint("Coincident", 75, 2, 72, 1),
    Sketcher.Constraint("Coincident", 76, 2, 77, 1),
    Sketcher.Constraint("Coincident", 77, 2, 78, 1),
    Sketcher.Constraint("Coincident", 78, 2, 79, 1),
    Sketcher.Constraint("Coincident", 79, 2, 76, 1),
    Sketcher.Constraint("Vertical", 0),
    Sketcher.Constraint("Horizontal", 1),
    Sketcher.Constraint("Vertical", 2),
    Sketcher.Constraint("Horizontal", 3),
    Sketcher.Constraint("Vertical", 4),
    Sketcher.Constraint("Horizontal", 5),
    Sketcher.Constraint("Vertical", 6),
    Sketcher.Constraint("Horizontal", 7),
    Sketcher.Constraint("Vertical", 8),
    Sketcher.Constraint("Horizontal", 9),
    Sketcher.Constraint("Vertical", 10),
    Sketcher.Constraint("Horizontal", 11),
    Sketcher.Constraint("Vertical", 12),
    Sketcher.Constraint("Horizontal", 13),
    Sketcher.Constraint("Vertical", 14),
    Sketcher.Constraint("Horizontal", 15),
    Sketcher.Constraint("Vertical", 16),
    Sketcher.Constraint("Horizontal", 17),
    Sketcher.Constraint("Vertical", 18),
    Sketcher.Constraint("Horizontal", 19),
    Sketcher.Constraint("Vertical", 20),
    Sketcher.Constraint("Horizontal", 21),
    Sketcher.Constraint("Vertical", 22),
    Sketcher.Constraint("Horizontal", 23),
    Sketcher.Constraint("Vertical", 24),
    Sketcher.Constraint("Horizontal", 25),
    Sketcher.Constraint("Vertical", 26),
    Sketcher.Constraint("Horizontal", 27),
    Sketcher.Constraint("Vertical", 28),
    Sketcher.Constraint("Horizontal", 29),
    Sketcher.Constraint("Vertical", 30),
    Sketcher.Constraint("Horizontal", 31),
    Sketcher.Constraint("Vertical", 32),
    Sketcher.Constraint("Horizontal", 33),
    Sketcher.Constraint("Vertical", 34),
    Sketcher.Constraint("Horizontal", 35),
    Sketcher.Constraint("Vertical", 36),
    Sketcher.Constraint("Horizontal", 37),
    Sketcher.Constraint("Vertical", 38),
    Sketcher.Constraint("Horizontal", 39),
    Sketcher.Constraint("Vertical", 40),
    Sketcher.Constraint("Horizontal", 41),
    Sketcher.Constraint("Vertical", 42),
    Sketcher.Constraint("Horizontal", 43),
    Sketcher.Constraint("Vertical", 44),
    Sketcher.Constraint("Horizontal", 45),
    Sketcher.Constraint("Vertical", 46),
    Sketcher.Constraint("Horizontal", 47),
    Sketcher.Constraint("Vertical", 48),
    Sketcher.Constraint("Horizontal", 49),
    Sketcher.Constraint("Vertical", 50),
    Sketcher.Constraint("Horizontal", 51),
    Sketcher.Constraint("Vertical", 52),
    Sketcher.Constraint("Horizontal", 53),
    Sketcher.Constraint("Vertical", 54),
    Sketcher.Constraint("Horizontal", 55),
    Sketcher.Constraint("Vertical", 56),
    Sketcher.Constraint("Horizontal", 57),
    Sketcher.Constraint("Vertical", 58),
    Sketcher.Constraint("Horizontal", 59),
    Sketcher.Constraint("Vertical", 60),
    Sketcher.Constraint("Horizontal", 61),
    Sketcher.Constraint("Vertical", 62),
    Sketcher.Constraint("Horizontal", 63),
    Sketcher.Constraint("Vertical", 64),
    Sketcher.Constraint("Horizontal", 65),
    Sketcher.Constraint("Vertical", 66),
    Sketcher.Constraint("Horizontal", 67),
    Sketcher.Constraint("Vertical", 68),
    Sketcher.Constraint("Horizontal", 69),
    Sketcher.Constraint("Vertical", 70),
    Sketcher.Constraint("Horizontal", 71),
    Sketcher.Constraint("Vertical", 72),
    Sketcher.Constraint("Horizontal", 73),
    Sketcher.Constraint("Vertical", 74),
    Sketcher.Constraint("Horizontal", 75),
    Sketcher.Constraint("Vertical", 76),
    Sketcher.Constraint("Horizontal", 77),
    Sketcher.Constraint("Vertical", 78),
    Sketcher.Constraint("Horizontal", 79),
    Sketcher.Constraint("Symmetric", 38, 2, 40, 2, -1, 1),
    Sketcher.Constraint("Symmetric", 36, 2, 42, 2, -1, 1),
    Sketcher.Constraint("Symmetric", 34, 2, 44, 2, -1, 1),
    Sketcher.Constraint("Symmetric", 32, 2, 46, 2, -1, 1),
    Sketcher.Constraint("Symmetric", 30, 2, 48, 2, -1, 1),
    Sketcher.Constraint("Symmetric", 28, 2, 50, 2, -1, 1),
    Sketcher.Constraint("Symmetric", 26, 2, 52, 2, -1, 1),
    Sketcher.Constraint("Symmetric", 24, 2, 54, 2, -1, 1),
    Sketcher.Constraint("Symmetric", 22, 2, 56, 2, -1, 1),
    Sketcher.Constraint("Symmetric", 20, 2, 58, 2, -1, 1),
    Sketcher.Constraint("Symmetric", 18, 2, 60, 2, -1, 1),
    Sketcher.Constraint("Symmetric", 16, 2, 62, 2, -1, 1),
    Sketcher.Constraint("Symmetric", 14, 2, 64, 2, -1, 1),
    Sketcher.Constraint("Symmetric", 12, 2, 66, 2, -1, 1),
    Sketcher.Constraint("Symmetric", 10, 2, 68, 2, -1, 1),
    Sketcher.Constraint("Symmetric", 8, 2, 70, 2, -1, 1),
    Sketcher.Constraint("Symmetric", 6, 2, 72, 2, -1, 1),
    Sketcher.Constraint("Symmetric", 4, 2, 74, 2, -1, 1),
    Sketcher.Constraint("Symmetric", 2, 2, 76, 2, -1, 1),
    Sketcher.Constraint("Symmetric", 0, 2, 78, 2, -1, 1),
    Sketcher.Constraint("Symmetric", 17, 2, 20, 2, -2),
    Sketcher.Constraint("Symmetric", 19, 2, 22, 2, -2),
    Sketcher.Constraint("Symmetric", 13, 2, 24, 2, -2),
    Sketcher.Constraint("Symmetric", 15, 2, 26, 2, -2),
    Sketcher.Constraint("Symmetric", 9, 2, 28, 2, -2),
    Sketcher.Constraint("Symmetric", 11, 2, 30, 2, -2),
    Sketcher.Constraint("Symmetric", 5, 2, 32, 2, -2),
    Sketcher.Constraint("Symmetric", 7, 2, 34, 2, -2),
    Sketcher.Constraint("Symmetric", 1, 2, 36, 2, -2),
    Sketcher.Constraint("Symmetric", 3, 2, 38, 2, -2),
    Sketcher.Constraint("Horizontal", 1, 2, 4, 2),
    Sketcher.Constraint("Horizontal", 3, 2, 6, 2),
    Sketcher.Constraint("Horizontal", 5, 2, 8, 2),
    Sketcher.Constraint("Horizontal", 7, 2, 10, 2),
    Sketcher.Constraint("Horizontal", 9, 2, 12, 2),
    Sketcher.Constraint("Horizontal", 11, 2, 14, 2),
    Sketcher.Constraint("Horizontal", 13, 2, 16, 2),
    Sketcher.Constraint("Horizontal", 15, 2, 18, 2),
    Sketcher.Constraint("Equal", 3, 5),
    Sketcher.Constraint("Equal", 7, 9),
    Sketcher.Constraint("Equal", 11, 13),
    Sketcher.Constraint("Equal", 15, 17),
    Sketcher.Constraint("Equal", 79, 0),
    Sketcher.Constraint("DistanceX", 1, 1, 1, 2, 0.65),
    Sketcher.Constraint("DistanceX", 0, 2, -1, 1, 11.755),
    Sketcher.Constraint("DistanceY", -1, 1, 0, 2, 8.565),
    Sketcher.Constraint("DistanceX", 4, 2, -1, 1, 9.215),
    Sketcher.Constraint("DistanceX", 8, 2, -1, 1, 6.675),
    Sketcher.Constraint("DistanceX", 12, 2, -1, 1, 4.135),
    Sketcher.Constraint("DistanceX", 16, 2, -1, 1, 1.595),
])
pad4 = body.newObject("PartDesign::Pad", "Pad003")
pad4.Profile = sketch4
pad4.Length = 1.5
doc.recompute()

chamfer = body.newObject("PartDesign::Chamfer", "Chamfer")
chamfer.Base = (pad4, edges_at(pad4, [
    (-11.43, -9.215, -8.5),
    (-11.755, -8.89, -8.5),
    (-11.43, -8.565, -8.5),
    (-11.105, -8.89, -8.5),
    (-8.565, -8.89, -8.5),
    (-8.89, -9.215, -8.5),
    (-9.215, -8.89, -8.5),
    (-8.89, -8.565, -8.5),
    (-6.025, -8.89, -8.5),
    (-6.35, -9.215, -8.5),
    (-6.675, -8.89, -8.5),
    (-6.35, -8.565, -8.5),
    (-3.485, -8.89, -8.5),
    (-3.81, -9.215, -8.5),
    (-4.135, -8.89, -8.5),
    (-3.81, -8.565, -8.5),
    (-0.945, -8.89, -8.5),
    (-1.27, -9.215, -8.5),
    (-1.595, -8.89, -8.5),
    (-1.27, -8.565, -8.5),
    (1.595, -8.89, -8.5),
    (1.27, -9.215, -8.5),
    (0.945, -8.89, -8.5),
    (1.27, -8.565, -8.5),
    (4.135, -8.89, -8.5),
    (3.81, -9.215, -8.5),
    (3.485, -8.89, -8.5),
    (3.81, -8.565, -8.5),
    (6.675, -8.89, -8.5),
    (6.35, -9.215, -8.5),
    (6.025, -8.89, -8.5),
    (6.35, -8.565, -8.5),
    (9.215, -8.89, -8.5),
    (8.89, -9.215, -8.5),
    (8.565, -8.89, -8.5),
    (8.89, -8.565, -8.5),
    (11.755, -8.89, -8.5),
    (11.43, -9.215, -8.5),
    (11.105, -8.89, -8.5),
    (11.43, -8.565, -8.5),
    (-11.43, 8.565, -8.5),
    (-11.755, 8.89, -8.5),
    (-11.43, 9.215, -8.5),
    (-11.105, 8.89, -8.5),
    (-9.215, 8.89, -8.5),
    (-8.89, 9.215, -8.5),
    (-8.565, 8.89, -8.5),
    (-8.89, 8.565, -8.5),
    (-6.675, 8.89, -8.5),
    (-6.35, 9.215, -8.5),
    (-6.025, 8.89, -8.5),
    (-6.35, 8.565, -8.5),
    (-4.135, 8.89, -8.5),
    (-3.81, 9.215, -8.5),
    (-3.485, 8.89, -8.5),
    (-3.81, 8.565, -8.5),
    (-1.27, 9.215, -8.5),
    (-0.945, 8.89, -8.5),
    (-1.27, 8.565, -8.5),
    (-1.595, 8.89, -8.5),
    (0.945, 8.89, -8.5),
    (1.27, 9.215, -8.5),
    (1.595, 8.89, -8.5),
    (1.27, 8.565, -8.5),
    (3.485, 8.89, -8.5),
    (3.81, 9.215, -8.5),
    (4.135, 8.89, -8.5),
    (3.81, 8.565, -8.5),
    (6.35, 8.565, -8.5),
    (6.025, 8.89, -8.5),
    (6.35, 9.215, -8.5),
    (6.675, 8.89, -8.5),
    (8.565, 8.89, -8.5),
    (8.89, 9.215, -8.5),
    (9.215, 8.89, -8.5),
    (8.89, 8.565, -8.5),
    (11.43, 9.215, -8.5),
    (11.755, 8.89, -8.5),
    (11.43, 8.565, -8.5),
    (11.105, 8.89, -8.5),
    (-11.755, 8.89, 3.1),
    (-11.43, 8.565, 3.1),
    (-11.105, 8.89, 3.1),
    (-11.43, 9.215, 3.1),
    (-8.89, 9.215, 3.1),
    (-9.215, 8.89, 3.1),
    (-8.89, 8.565, 3.1),
    (-8.565, 8.89, 3.1),
    (-6.35, 9.215, 3.1),
    (-6.675, 8.89, 3.1),
    (-6.35, 8.565, 3.1),
    (-6.025, 8.89, 3.1),
    (-3.81, 9.215, 3.1),
    (-4.135, 8.89, 3.1),
    (-3.81, 8.565, 3.1),
    (-3.485, 8.89, 3.1),
    (-1.595, 8.89, 3.1),
    (-1.27, 8.565, 3.1),
    (-0.945, 8.89, 3.1),
    (-1.27, 9.215, 3.1),
    (1.27, 9.215, 3.1),
    (0.945, 8.89, 3.1),
    (1.27, 8.565, 3.1),
    (1.595, 8.89, 3.1),
    (3.485, 8.89, 3.1),
    (3.81, 8.565, 3.1),
    (4.135, 8.89, 3.1),
    (3.81, 9.215, 3.1),
    (6.025, 8.89, 3.1),
    (6.35, 8.565, 3.1),
    (6.675, 8.89, 3.1),
    (6.35, 9.215, 3.1),
    (8.89, 9.215, 3.1),
    (8.565, 8.89, 3.1),
    (8.89, 8.565, 3.1),
    (9.215, 8.89, 3.1),
    (11.105, 8.89, 3.1),
    (11.43, 8.565, 3.1),
    (11.755, 8.89, 3.1),
    (11.43, 9.215, 3.1),
    (-11.755, -8.89, 3.1),
    (-11.43, -9.215, 3.1),
    (-11.105, -8.89, 3.1),
    (-11.43, -8.565, 3.1),
    (-8.89, -9.215, 3.1),
    (-8.565, -8.89, 3.1),
    (-8.89, -8.565, 3.1),
    (-9.215, -8.89, 3.1),
    (-6.35, -9.215, 3.1),
    (-6.025, -8.89, 3.1),
    (-6.35, -8.565, 3.1),
    (-6.675, -8.89, 3.1),
    (-3.81, -9.215, 3.1),
    (-3.485, -8.89, 3.1),
    (-3.81, -8.565, 3.1),
    (-4.135, -8.89, 3.1),
    (-1.27, -9.215, 3.1),
    (-0.945, -8.89, 3.1),
    (-1.27, -8.565, 3.1),
    (-1.595, -8.89, 3.1),
    (1.27, -9.215, 3.1),
    (1.595, -8.89, 3.1),
    (1.27, -8.565, 3.1),
    (0.945, -8.89, 3.1),
    (3.81, -9.215, 3.1),
    (4.135, -8.89, 3.1),
    (3.81, -8.565, 3.1),
    (3.485, -8.89, 3.1),
    (6.35, -9.215, 3.1),
    (6.675, -8.89, 3.1),
    (6.35, -8.565, 3.1),
    (6.025, -8.89, 3.1),
    (8.89, -9.215, 3.1),
    (9.215, -8.89, 3.1),
    (8.89, -8.565, 3.1),
    (8.565, -8.89, 3.1),
    (11.43, -9.215, 3.1),
    (11.755, -8.89, 3.1),
    (11.43, -8.565, 3.1),
    (11.105, -8.89, 3.1),
]))
chamfer.Size = 0.2

sketch5 = body.newObject("Sketcher::SketchObject", "Sketch004")
sketch5.AttachmentSupport = (doc.getObject("XY_Plane"), [""])
sketch5.MapMode = "FlatFace"
sketch5.AttachmentOffset = App.Placement(V(0, 0, 1.6), App.Rotation())
sketch5.addGeometry([
    Part.LineSegment(V(-13.3, 5.8, 0), V(-13.3, -5.8, 0)),
    Part.LineSegment(V(-13.3, -5.8, 0), V(-9.8, -5.8, 0)),
    Part.LineSegment(V(-9.8, -5.8, 0), V(-9.8, 5.8, 0)),
    Part.LineSegment(V(-9.8, 5.8, 0), V(-13.3, 5.8, 0)),
], False)
sketch5.addConstraint([
    Sketcher.Constraint("Coincident", 0, 2, 1, 1),
    Sketcher.Constraint("Coincident", 1, 2, 2, 1),
    Sketcher.Constraint("Coincident", 2, 2, 3, 1),
    Sketcher.Constraint("Coincident", 3, 2, 0, 1),
    Sketcher.Constraint("Vertical", 0),
    Sketcher.Constraint("Horizontal", 1),
    Sketcher.Constraint("Vertical", 2),
    Sketcher.Constraint("Horizontal", 3),
    Sketcher.Constraint("DistanceX", 1, 1, 1, 2, 3.5),
    Sketcher.Constraint("DistanceY", 0, 2, 0, 1, 11.5),
    Sketcher.Constraint("DistanceX", 0, 2, -1, 1, 13.3),
    Sketcher.Constraint("DistanceY", 0, 2, -1, 1, 5.75),
])
pad5 = body.newObject("PartDesign::Pad", "Pad004")
pad5.Profile = sketch5
pad5.Length = 2.3

sketch6 = body.newObject("Sketcher::SketchObject", "Sketch005")
sketch6.AttachmentSupport = (doc.getObject("XY_Plane"), [""])
sketch6.MapMode = "FlatFace"
sketch6.AttachmentOffset = App.Placement(V(0, 0, 1.6), App.Rotation())
sketch6.addGeometry([
    Part.LineSegment(V(-5.6, 2.3, 0), V(-5.6, -6.1, 0)),
    Part.LineSegment(V(-5.6, -6.1, 0), V(2.8, -6.1, 0)),
    Part.LineSegment(V(2.8, -6.1, 0), V(2.8, 2.3, 0)),
    Part.LineSegment(V(2.8, 2.3, 0), V(-5.6, 2.3, 0)),
    Part.LineSegment(V(5.2, 3.3, 0), V(5.2, -0.7, 0)),
    Part.LineSegment(V(5.2, -0.7, 0), V(10.8, -0.7, 0)),
    Part.LineSegment(V(10.8, -0.7, 0), V(10.8, 3.3, 0)),
    Part.LineSegment(V(10.8, 3.3, 0), V(5.2, 3.3, 0)),
], False)
sketch6.addConstraint([
    Sketcher.Constraint("Coincident", 0, 2, 1, 1),
    Sketcher.Constraint("Coincident", 1, 2, 2, 1),
    Sketcher.Constraint("Coincident", 2, 2, 3, 1),
    Sketcher.Constraint("Coincident", 3, 2, 0, 1),
    Sketcher.Constraint("Coincident", 4, 2, 5, 1),
    Sketcher.Constraint("Coincident", 5, 2, 6, 1),
    Sketcher.Constraint("Coincident", 6, 2, 7, 1),
    Sketcher.Constraint("Coincident", 7, 2, 4, 1),
    Sketcher.Constraint("Vertical", 0),
    Sketcher.Constraint("Horizontal", 1),
    Sketcher.Constraint("Vertical", 2),
    Sketcher.Constraint("Horizontal", 3),
    Sketcher.Constraint("Vertical", 4),
    Sketcher.Constraint("Horizontal", 5),
    Sketcher.Constraint("Vertical", 6),
    Sketcher.Constraint("Horizontal", 7),
    Sketcher.Constraint("Equal", 3, 0),
    Sketcher.Constraint("DistanceX", 5, 1, 5, 2, 5.517729),
    Sketcher.Constraint("DistanceY", -1, 1, 2, 2, 2.312899),
    Sketcher.Constraint("DistanceX", 1, 1, 1, 2, 8.403437),
    Sketcher.Constraint("DistanceY", 4, 2, 4, 1, 3.995596),
    Sketcher.Constraint("DistanceX", 0, 2, -1, 1, 5.64046),
    Sketcher.Constraint("DistanceX", -1, 1, 4, 2, 5.236441),
    Sketcher.Constraint("DistanceY", 1, 2, 6, 2, 9.41819),
])
pad6 = body.newObject("PartDesign::Pad", "Pad005")
pad6.Profile = sketch6
pad6.Length = 1

doc.recompute()
